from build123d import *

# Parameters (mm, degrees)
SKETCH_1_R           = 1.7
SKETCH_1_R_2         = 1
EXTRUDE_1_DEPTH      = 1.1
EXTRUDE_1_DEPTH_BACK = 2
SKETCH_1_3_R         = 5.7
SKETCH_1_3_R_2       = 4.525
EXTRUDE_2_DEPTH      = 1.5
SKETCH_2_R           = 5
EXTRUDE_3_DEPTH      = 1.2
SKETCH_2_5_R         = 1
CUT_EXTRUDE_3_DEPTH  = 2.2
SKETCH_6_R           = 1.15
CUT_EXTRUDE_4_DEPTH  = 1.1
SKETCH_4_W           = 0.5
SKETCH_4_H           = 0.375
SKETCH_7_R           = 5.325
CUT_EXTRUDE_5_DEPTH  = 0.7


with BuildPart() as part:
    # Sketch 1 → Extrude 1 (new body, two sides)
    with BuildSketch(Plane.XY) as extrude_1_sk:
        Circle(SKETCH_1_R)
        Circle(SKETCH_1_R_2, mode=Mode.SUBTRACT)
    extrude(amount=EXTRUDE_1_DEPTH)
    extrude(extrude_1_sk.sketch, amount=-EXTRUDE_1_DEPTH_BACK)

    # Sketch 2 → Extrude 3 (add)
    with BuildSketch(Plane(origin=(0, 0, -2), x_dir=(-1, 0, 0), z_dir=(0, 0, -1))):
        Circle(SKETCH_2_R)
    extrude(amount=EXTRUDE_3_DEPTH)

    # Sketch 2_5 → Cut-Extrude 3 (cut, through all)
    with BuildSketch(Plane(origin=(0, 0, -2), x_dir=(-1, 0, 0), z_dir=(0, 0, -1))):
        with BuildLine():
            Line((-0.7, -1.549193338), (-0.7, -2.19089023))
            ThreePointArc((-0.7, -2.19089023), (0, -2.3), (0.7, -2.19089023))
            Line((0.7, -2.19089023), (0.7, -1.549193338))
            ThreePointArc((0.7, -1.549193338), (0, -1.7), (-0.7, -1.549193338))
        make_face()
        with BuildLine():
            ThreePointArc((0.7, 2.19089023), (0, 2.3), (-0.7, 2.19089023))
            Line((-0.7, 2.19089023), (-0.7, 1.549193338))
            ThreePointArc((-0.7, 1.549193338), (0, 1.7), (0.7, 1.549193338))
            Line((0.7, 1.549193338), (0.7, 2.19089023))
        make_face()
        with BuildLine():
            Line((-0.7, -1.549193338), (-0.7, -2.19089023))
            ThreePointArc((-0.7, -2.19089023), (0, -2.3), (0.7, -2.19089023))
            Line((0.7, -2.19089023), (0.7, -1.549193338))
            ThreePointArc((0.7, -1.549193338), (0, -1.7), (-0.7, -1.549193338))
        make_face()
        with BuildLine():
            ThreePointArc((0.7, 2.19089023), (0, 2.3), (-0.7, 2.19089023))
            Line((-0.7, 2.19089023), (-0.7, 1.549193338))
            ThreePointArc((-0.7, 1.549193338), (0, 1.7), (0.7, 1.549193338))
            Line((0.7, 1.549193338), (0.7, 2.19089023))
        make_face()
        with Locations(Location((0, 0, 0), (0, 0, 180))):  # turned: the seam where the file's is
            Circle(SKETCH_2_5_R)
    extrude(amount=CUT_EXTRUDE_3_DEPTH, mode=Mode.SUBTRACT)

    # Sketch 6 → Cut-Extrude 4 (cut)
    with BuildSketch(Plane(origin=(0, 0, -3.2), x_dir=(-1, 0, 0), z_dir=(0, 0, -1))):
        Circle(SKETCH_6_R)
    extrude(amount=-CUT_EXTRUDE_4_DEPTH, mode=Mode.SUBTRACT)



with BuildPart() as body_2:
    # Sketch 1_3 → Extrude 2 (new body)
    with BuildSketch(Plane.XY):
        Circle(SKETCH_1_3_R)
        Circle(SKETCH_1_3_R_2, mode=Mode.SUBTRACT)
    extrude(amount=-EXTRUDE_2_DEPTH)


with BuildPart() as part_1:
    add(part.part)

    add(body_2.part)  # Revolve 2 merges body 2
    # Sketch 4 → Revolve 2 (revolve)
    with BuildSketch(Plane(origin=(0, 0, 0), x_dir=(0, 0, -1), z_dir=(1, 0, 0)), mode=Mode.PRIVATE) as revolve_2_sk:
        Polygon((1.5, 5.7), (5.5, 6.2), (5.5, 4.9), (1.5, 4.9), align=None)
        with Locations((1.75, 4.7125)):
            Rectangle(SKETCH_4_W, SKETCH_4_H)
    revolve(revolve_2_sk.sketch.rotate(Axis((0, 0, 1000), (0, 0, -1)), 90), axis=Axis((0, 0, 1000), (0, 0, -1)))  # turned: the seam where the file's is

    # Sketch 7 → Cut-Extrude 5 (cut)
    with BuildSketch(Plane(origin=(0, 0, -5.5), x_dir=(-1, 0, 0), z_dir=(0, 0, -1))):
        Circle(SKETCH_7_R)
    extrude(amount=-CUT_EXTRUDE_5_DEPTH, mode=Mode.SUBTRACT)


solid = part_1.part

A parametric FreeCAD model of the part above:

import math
import FreeCAD as App
import Part
import Sketcher
Q = App.Units.Quantity


def add_polygon(sketch, points):
    """Adds a closed chain of lines whose ends are joined by coincident constraints."""
    first, n = sketch.GeometryCount, len(points)
    for a, b in zip(points, points[1:] + points[:1]):
        sketch.addGeometry(Part.LineSegment(App.Vector(*a, 0), App.Vector(*b, 0)), False)
    for i in range(n):
        sketch.addConstraint(Sketcher.Constraint("Coincident", first + i, 2, first + (i + 1) % n, 1))

doc = App.newDocument("Part")
params = doc.addObject("Spreadsheet::Sheet", "Params")
for row, (alias, value) in enumerate([
    ("sketch1_diameter", "2 mm"),
    ("sketch1_diameter2", "3.4 mm"),
    ("pad1_length", "1.1 mm"),
    ("pad1_length2", "2 mm"),
    ("sketch2_diameter", "10 mm"),
    ("pad2_length", "1.2 mm"),
    ("sketch3_diameter", "2 mm"),
    ("sketch3_radius", "2.3 mm"),
    ("sketch3_radius2", "1.7 mm"),
    ("sketch4_diameter", "2.3 mm"),
    ("pocket2_length", "1.1 mm"),
    ("sketch5_diameter", "11.4 mm"),
    ("sketch5_diameter2", "9.05 mm"),
    ("pad3_length", "1.5 mm"),
    ("sketch6_width", "1.3 mm"),
    ("sketch6_height", "0.5 mm"),
    ("sketch6_height2", "3.5 mm"),
    ("revolution_angle", "360 deg"),
    ("sketch7_diameter", "10.65 mm"),
    ("pocket3_length", "0.7 mm"),
], start=1):
    params.set(f"A{row}", alias)
    params.set(f"B{row}", "=" + value)
    params.setAlias(f"B{row}", alias)

body = doc.addObject("PartDesign::Body", "Body")

# Sketch on XY plane
sketch1 = body.newObject("Sketcher::SketchObject", "Sketch")
sketch1.AttachmentSupport = (doc.getObject("XY_Plane"), [""])
sketch1.MapMode = "FlatFace"
sketch1.addGeometry([
    Part.Circle(App.Vector(0, 0, 0), App.Vector(0, 0, 1), 1.7),
    Part.Circle(App.Vector(0, 0, 0), App.Vector(0, 0, 1), 1),
], False)
sketch1.addConstraint([
    Sketcher.Constraint("Coincident", 0, 3, -1, 1),
    Sketcher.Constraint("Coincident", 1, 3, -1, 1),
    Sketcher.Constraint("Diameter", 1, Q("2 mm")),
    Sketcher.Constraint("Diameter", 0, Q("3.4 mm")),
])
sketch1.setExpression("Constraints[2]", "Params.sketch1_diameter")
sketch1.setExpression("Constraints[3]", "Params.sketch1_diameter2")
pad1 = body.newObject("PartDesign::Pad", "Pad")
pad1.Profile = sketch1
pad1.Type = "TwoLengths"
pad1.setExpression("Length", "Params.pad1_length")
pad1.setExpression("Length2", "Params.pad1_length2")

# Sketch on XY plane
sketch2 = body.newObject("Sketcher::SketchObject", "Sketch001")
sketch2.AttachmentSupport = (doc.getObject("XY_Plane"), [""])
sketch2.MapMode = "FlatFace"
sketch2.AttachmentOffset = App.Placement(App.Vector(0, 0, -2), App.Rotation())
sketch2.addGeometry(Part.Circle(App.Vector(0, 0, 0), App.Vector(0, 0, 1), 5), False)
sketch2.addConstraint([
    Sketcher.Constraint("Coincident", 0, 3, -1, 1),
    Sketcher.Constraint("Diameter", 0, Q("10 mm")),
])
sketch2.setExpression("Constraints[1]", "Params.sketch2_diameter")
pad2 = body.newObject("PartDesign::Pad", "Pad001")
pad2.Profile = sketch2
pad2.setExpression("Length", "Params.pad2_length")
pad2.Reversed = True

# Sketch on XY plane
sketch3 = body.newObject("Sketcher::SketchObject", "Sketch002")
sketch3.AttachmentSupport = (doc.getObject("XY_Plane"), [""])
sketch3.MapMode = "FlatFace"
sketch3.AttachmentOffset = App.Placement(App.Vector(0, 0, -2), App.Rotation())
sketch3.addGeometry([
    Part.LineSegment(App.Vector(0.7, -1.5, 0), App.Vector(0.7, -2.2, 0)),  # 0
    Part.ArcOfCircle(Part.Circle(App.Vector(0, 0, 0), App.Vector(0, 0, 1), 2.3), math.radians(-108), math.radians(-72)),  # 1
    Part.LineSegment(App.Vector(-0.7, -2.2, 0), App.Vector(-0.7, -1.5, 0)),  # 2
    Part.ArcOfCircle(Part.Circle(App.Vector(0, 0, 0), App.Vector(0, 0, 1), 1.7), math.radians(-114), math.radians(-66)),  # 3
    Part.ArcOfCircle(Part.Circle(App.Vector(0, 0, 0), App.Vector(0, 0, 1), 2.3), math.radians(72), math.radians(108)),  # 4
    Part.LineSegment(App.Vector(0.7, 2.2, 0), App.Vector(0.7, 1.5, 0)),  # 5
    Part.ArcOfCircle(Part.Circle(App.Vector(0, 0, 0), App.Vector(0, 0, 1), 1.7), math.radians(66), math.radians(114)),  # 6
    Part.LineSegment(App.Vector(-0.7, 1.5, 0), App.Vector(-0.7, 2.2, 0)),  # 7
    Part.Circle(App.Vector(0, 0, 0), App.Vector(0, 0, 1), 1),  # 8
], False)
sketch3.addConstraint([
    Sketcher.Constraint("Coincident", 0, 2, 1, 2),
    Sketcher.Constraint("Coincident", 1, 1, 2, 1),
    Sketcher.Constraint("Coincident", 2, 2, 3, 1),
    Sketcher.Constraint("Coincident", 3, 2, 0, 1),
    Sketcher.Constraint("Coincident", 4, 1, 5, 1),
    Sketcher.Constraint("Coincident", 5, 2, 6, 1),
    Sketcher.Constraint("Coincident", 6, 2, 7, 1),
    Sketcher.Constraint("Coincident", 7, 2, 4, 2),
    Sketcher.Constraint("Vertical", 0),
    Sketcher.Constraint("Vertical", 2),
    Sketcher.Constraint("Vertical", 5),
    Sketcher.Constraint("Vertical", 7),
    Sketcher.Constraint("Coincident", 1, 3, -1, 1),
    Sketcher.Constraint("Coincident", 3, 3, -1, 1),
    Sketcher.Constraint("Coincident", 4, 3, -1, 1),
    Sketcher.Constraint("Coincident", 6, 3, -1, 1),
    Sketcher.Constraint("Coincident", 8, 3, -1, 1),
    Sketcher.Constraint("Equal", 1, 4),
    Sketcher.Constraint("Equal", 3, 6),
    Sketcher.Constraint("Horizontal", 0, 2, 1, 1),
    Sketcher.Constraint("Horizontal", 5, 2, 6, 2),
    Sketcher.Constraint("Vertical", 3, 2, 4, 1),
    Sketcher.Constraint("Diameter", 8, Q("2 mm")),
    Sketcher.Constraint("Radius", 1, Q("2.3 mm")),
    Sketcher.Constraint("Radius", 3, Q("1.7 mm")),
    Sketcher.Constraint("DistanceX", -1, 1, 0, 2, Q("0.7 mm")),
])
sketch3.setExpression("Constraints[22]", "Params.sketch3_diameter")
sketch3.setExpression("Constraints[23]", "Params.sketch3_radius")
sketch3.setExpression("Constraints[24]", "Params.sketch3_radius2")
pocket1 = body.newObject("PartDesign::Pocket", "Pocket")
pocket1.Profile = sketch3
pocket1.Type = "ThroughAll"

# Sketch on XY plane
sketch4 = body.newObject("Sketcher::SketchObject", "Sketch003")
sketch4.AttachmentSupport = (doc.getObject("XY_Plane"), [""])
sketch4.MapMode = "FlatFace"
sketch4.AttachmentOffset = App.Placement(App.Vector(0, 0, -3.2), App.Rotation())
sketch4.addGeometry(Part.Circle(App.Vector(0, 0, 0), App.Vector(0, 0, 1), 1.1), False)
sketch4.addConstraint([
    Sketcher.Constraint("Coincident", 0, 3, -1, 1),
    Sketcher.Constraint("Diameter", 0, Q("2.3 mm")),
])
sketch4.setExpression("Constraints[1]", "Params.sketch4_diameter")
pocket2 = body.newObject("PartDesign::Pocket", "Pocket001")
pocket2.Profile = sketch4
pocket2.setExpression("Length", "Params.pocket2_length")
pocket2.Reversed = True
body2 = doc.addObject("PartDesign::Body", "Body001")

# Sketch on XY plane
sketch5 = body2.newObject("Sketcher::SketchObject", "Sketch004")
sketch5.AttachmentSupport = (doc.getObject("XY_Plane001"), [""])
sketch5.MapMode = "FlatFace"
sketch5.addGeometry([
    Part.Circle(App.Vector(0, 0, 0), App.Vector(0, 0, 1), 5.7),
    Part.Circle(App.Vector(0, 0, 0), App.Vector(0, 0, 1), 4.5),
], False)
sketch5.addConstraint([
    Sketcher.Constraint("Coincident", 0, 3, -1, 1),
    Sketcher.Constraint("Coincident", 1, 3, -1, 1),
    Sketcher.Constraint("Diameter", 0, Q("11.4 mm")),
    Sketcher.Constraint("Diameter", 1, Q("9.05 mm")),
])
sketch5.setExpression("Constraints[2]", "Params.sketch5_diameter")
sketch5.setExpression("Constraints[3]", "Params.sketch5_diameter2")
pad3 = body2.newObject("PartDesign::Pad", "Pad002")
pad3.Profile = sketch5
pad3.setExpression("Length", "Params.pad3_length")
pad3.Reversed = True
body.AllowCompound = True
doc.recompute()

boolean = body.newObject("PartDesign::Boolean", "Boolean")
boolean.Type = "Fuse"
boolean.addObjects([body2])

# Sketch on YZ plane
sketch6 = body.newObject("Sketcher::SketchObject", "Sketch005")
sketch6.AttachmentSupport = (doc.getObject("YZ_Plane"), [""])
sketch6.MapMode = "FlatFace"
add_polygon(sketch6, [(6.2, -5.5), (5.7, -1.5), (4.53, -1.5), (4.53, -2), (4.9, -2), (4.9, -5.5)])  # lines 0-5
sketch6.addConstraint([
    Sketcher.Constraint("Horizontal", 1),
    Sketcher.Constraint("Vertical", 2),
    Sketcher.Constraint("Horizontal", 3),
    Sketcher.Constraint("Vertical", 4),
    Sketcher.Constraint("Horizontal", 5),
    Sketcher.Constraint("DistanceX", 5, 1, 5, 2, Q("1.3 mm")),
    Sketcher.Constraint("DistanceY", 2, 2, 2, 1, Q("0.5 mm")),
    Sketcher.Constraint("DistanceY", 4, 2, 4, 1, Q("3.5 mm")),
    Sketcher.Constraint("DistanceY", 2, 2, -1, 1, Q("2 mm")),
    Sketcher.Constraint("DistanceX", -1, 1, 0, 2, Q("5.7 mm")),
    Sketcher.Constraint("DistanceX", -1, 1, 3, 2, Q("4.9 mm")),
    Sketcher.Constraint("DistanceX", 1, 2, 1, 1, Q("1.175 mm")),
])
sketch6.setExpression("Constraints[11]", "Params.sketch6_width")
sketch6.setExpression("Constraints[12]", "Params.sketch6_height")
sketch6.setExpression("Constraints[13]", "Params.sketch6_height2")
revolution = body.newObject("PartDesign::Revolution", "Revolution")
revolution.Profile = sketch6
revolution.ReferenceAxis = (sketch6, ["V_Axis"])
revolution.setExpression("Angle", "Params.revolution_angle")

# Sketch on XY plane
sketch7 = body.newObject("Sketcher::SketchObject", "Sketch006")
sketch7.AttachmentSupport = (doc.getObject("XY_Plane"), [""])
sketch7.MapMode = "FlatFace"
sketch7.AttachmentOffset = App.Placement(App.Vector(0, 0, -5.5), App.Rotation())
sketch7.addGeometry(Part.Circle(App.Vector(0, 0, 0), App.Vector(0, 0, 1), 5), False)
sketch7.addConstraint([
    Sketcher.Constraint("Coincident", 0, 3, -1, 1),
    Sketcher.Constraint("Diameter", 0, Q("10.65 mm")),
])
sketch7.setExpression("Constraints[1]", "Params.sketch7_diameter")
pocket3 = body.newObject("PartDesign::Pocket", "Pocket002")
pocket3.Profile = sketch7
pocket3.setExpression("Length", "Params.pocket3_length")
pocket3.Reversed = True

doc.recompute()
